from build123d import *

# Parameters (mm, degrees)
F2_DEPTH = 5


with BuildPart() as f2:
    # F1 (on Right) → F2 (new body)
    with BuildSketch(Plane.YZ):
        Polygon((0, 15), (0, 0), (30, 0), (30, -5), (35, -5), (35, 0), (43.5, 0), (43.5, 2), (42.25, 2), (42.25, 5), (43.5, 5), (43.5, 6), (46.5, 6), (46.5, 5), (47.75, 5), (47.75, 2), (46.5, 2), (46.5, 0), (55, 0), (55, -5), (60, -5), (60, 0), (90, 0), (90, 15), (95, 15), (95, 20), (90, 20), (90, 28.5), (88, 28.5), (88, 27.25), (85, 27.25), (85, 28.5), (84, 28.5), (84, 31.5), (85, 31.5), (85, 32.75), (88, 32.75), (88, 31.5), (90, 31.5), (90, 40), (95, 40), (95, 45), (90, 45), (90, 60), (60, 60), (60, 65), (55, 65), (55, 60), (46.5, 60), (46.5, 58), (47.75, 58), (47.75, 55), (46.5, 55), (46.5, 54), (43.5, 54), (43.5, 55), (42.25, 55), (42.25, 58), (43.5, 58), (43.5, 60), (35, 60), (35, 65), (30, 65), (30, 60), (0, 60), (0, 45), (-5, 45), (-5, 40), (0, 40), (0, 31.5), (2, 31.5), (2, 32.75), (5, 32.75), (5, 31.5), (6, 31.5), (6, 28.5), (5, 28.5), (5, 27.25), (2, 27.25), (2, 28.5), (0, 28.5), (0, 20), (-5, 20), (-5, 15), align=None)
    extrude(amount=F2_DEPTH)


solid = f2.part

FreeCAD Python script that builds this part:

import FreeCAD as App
import Part
import Sketcher
from FreeCAD import Vector
Q = App.Units.Quantity


def add_polygon(sketch, points):
    """Adds a closed chain of lines whose ends are joined by coincident constraints."""
    first, n = sketch.GeometryCount, len(points)
    for a, b in zip(points, points[1:] + points[:1]):
        sketch.addGeometry(Part.LineSegment(App.Vector(*a, 0), App.Vector(*b, 0)), False)
    for i in range(n):
        sketch.addConstraint(Sketcher.Constraint("Coincident", first + i, 2, first + (i + 1) % n, 1))

doc = App.newDocument("Part")
body = doc.addObject("PartDesign::Body", "Body")

# Sketch on YZ plane
sketch1 = body.newObject("Sketcher::SketchObject", "Sketch")
sketch1.AttachmentSupport = (doc.getObject("YZ_Plane"), [""])
sketch1.MapMode = "FlatFace"
add_polygon(sketch1, [(0, 15), (0, 0), (30, 0), (30, -5), (35, -5), (35, 0), (43.5, 0), (43.5, 2), (42.2, 2), (42.2, 5), (43.5, 5), (43.5, 6), (46.5, 6), (46.5, 5), (47.8, 5), (47.8, 2), (46.5, 2), (46.5, 0), (55, 0), (55, -5), (60, -5), (60, 0), (90, 0), (90, 15), (95, 15), (95, 20), (90, 20), (90, 28.5), (88, 28.5), (88, 27.2), (85, 27.2), (85, 28.5), (84, 28.5), (84, 31.5), (85, 31.5), (85, 32.8), (88, 32.8), (88, 31.5), (90, 31.5), (90, 40), (95, 40), (95, 45), (90, 45), (90, 60), (60, 60), (60, 65), (55, 65), (55, 60), (46.5, 60), (46.5, 58), (47.8, 58), (47.8, 55), (46.5, 55), (46.5, 54), (43.5, 54), (43.5, 55), (42.2, 55), (42.2, 58), (43.5, 58), (43.5, 60), (35, 60), (35, 65), (30, 65), (30, 60), (0, 60), (0, 45), (-5, 45), (-5, 40), (0, 40), (0, 31.5), (2, 31.5), (2, 32.8), (5, 32.8), (5, 31.5), (6, 31.5), (6, 28.5), (5, 28.5), (5, 27.2), (2, 27.2), (2, 28.5), (0, 28.5), (0, 20), (-5, 20), (-5, 15)])  # lines 0-83
sketch1.addConstraint(Sketcher.Constraint("Vertical", 0))
sketch1.addConstraint(Sketcher.Constraint("Horizontal", 1))
sketch1.addConstraint(Sketcher.Constraint("Vertical", 2))
sketch1.addConstraint(Sketcher.Constraint("Horizontal", 3))
sketch1.addConstraint(Sketcher.Constraint("Vertical", 4))
sketch1.addConstraint(Sketcher.Constraint("Horizontal", 5))
sketch1.addConstraint(Sketcher.Constraint("Vertical", 6))
sketch1.addConstraint(Sketcher.Constraint("Horizontal", 7))
sketch1.addConstraint(Sketcher.Constraint("Vertical", 8))
sketch1.addConstraint(Sketcher.Constraint("Horizontal", 9))
sketch1.addConstraint(Sketcher.Constraint("Vertical", 10))
sketch1.addConstraint(Sketcher.Constraint("Horizontal", 11))
sketch1.addConstraint(Sketcher.Constraint("Vertical", 12))
sketch1.addConstraint(Sketcher.Constraint("Horizontal", 13))
sketch1.addConstraint(Sketcher.Constraint("Vertical", 14))
sketch1.addConstraint(Sketcher.Constraint("Horizontal", 15))
sketch1.addConstraint(Sketcher.Constraint("Vertical", 16))
sketch1.addConstraint(Sketcher.Constraint("Horizontal", 17))
sketch1.addConstraint(Sketcher.Constraint("Vertical", 18))
sketch1.addConstraint(Sketcher.Constraint("Horizontal", 19))
sketch1.addConstraint(Sketcher.Constraint("Vertical", 20))
sketch1.addConstraint(Sketcher.Constraint("Horizontal", 21))
sketch1.addConstraint(Sketcher.Constraint("Vertical", 22))
sketch1.addConstraint(Sketcher.Constraint("Horizontal", 23))
sketch1.addConstraint(Sketcher.Constraint("Vertical", 24))
sketch1.addConstraint(Sketcher.Constraint("Horizontal", 25))
sketch1.addConstraint(Sketcher.Constraint("Vertical", 26))
sketch1.addConstraint(Sketcher.Constraint("Horizontal", 27))
sketch1.addConstraint(Sketcher.Constraint("Vertical", 28))
sketch1.addConstraint(Sketcher.Constraint("Horizontal", 29))
sketch1.addConstraint(Sketcher.Constraint("Vertical", 30))
sketch1.addConstraint(Sketcher.Constraint("Horizontal", 31))
sketch1.addConstraint(Sketcher.Constraint("Vertical", 32))
sketch1.addConstraint(Sketcher.Constraint("Horizontal", 33))
sketch1.addConstraint(Sketcher.Constraint("Vertical", 34))
sketch1.addConstraint(Sketcher.Constraint("Horizontal", 35))
sketch1.addConstraint(Sketcher.Constraint("Vertical", 36))
sketch1.addConstraint(Sketcher.Constraint("Horizontal", 37))
sketch1.addConstraint(Sketcher.Constraint("Vertical", 38))
sketch1.addConstraint(Sketcher.Constraint("Horizontal", 39))
sketch1.addConstraint(Sketcher.Constraint("Vertical", 40))
sketch1.addConstraint(Sketcher.Constraint("Horizontal", 41))
sketch1.addConstraint(Sketcher.Constraint("Vertical", 42))
sketch1.addConstraint(Sketcher.Constraint("Horizontal", 43))
sketch1.addConstraint(Sketcher.Constraint("Vertical", 44))
sketch1.addConstraint(Sketcher.Constraint("Horizontal", 45))
sketch1.addConstraint(Sketcher.Constraint("Vertical", 46))
sketch1.addConstraint(Sketcher.Constraint("Horizontal", 47))
sketch1.addConstraint(Sketcher.Constraint("Vertical", 48))
sketch1.addConstraint(Sketcher.Constraint("Horizontal", 49))
sketch1.addConstraint(Sketcher.Constraint("Vertical", 50))
sketch1.addConstraint(Sketcher.Constraint("Horizontal", 51))
sketch1.addConstraint(Sketcher.Constraint("Vertical", 52))
sketch1.addConstraint(Sketcher.Constraint("Horizontal", 53))
sketch1.addConstraint(Sketcher.Constraint("Vertical", 54))
sketch1.addConstraint(Sketcher.Constraint("Horizontal", 55))
sketch1.addConstraint(Sketcher.Constraint("Vertical", 56))
sketch1.addConstraint(Sketcher.Constraint("Horizontal", 57))
sketch1.addConstraint(Sketcher.Constraint("Vertical", 58))
sketch1.addConstraint(Sketcher.Constraint("Horizontal", 59))
sketch1.addConstraint(Sketcher.Constraint("Vertical", 60))
sketch1.addConstraint(Sketcher.Constraint("Horizontal", 61))
sketch1.addConstraint(Sketcher.Constraint("Vertical", 62))
sketch1.addConstraint(Sketcher.Constraint("Horizontal", 63))
sketch1.addConstraint(Sketcher.Constraint("Vertical", 64))
sketch1.addConstraint(Sketcher.Constraint("Horizontal", 65))
sketch1.addConstraint(Sketcher.Constraint("Vertical", 66))
sketch1.addConstraint(Sketcher.Constraint("Horizontal", 67))
sketch1.addConstraint(Sketcher.Constraint("Vertical", 68))
sketch1.addConstraint(Sketcher.Constraint("Horizontal", 69))
sketch1.addConstraint(Sketcher.Constraint("Vertical", 70))
sketch1.addConstraint(Sketcher.Constraint("Horizontal", 71))
sketch1.addConstraint(Sketcher.Constraint("Vertical", 72))
sketch1.addConstraint(Sketcher.Constraint("Horizontal", 73))
sketch1.addConstraint(Sketcher.Constraint("Vertical", 74))
sketch1.addConstraint(Sketcher.Constraint("Horizontal", 75))
sketch1.addConstraint(Sketcher.Constraint("Vertical", 76))
sketch1.addConstraint(Sketcher.Constraint("Horizontal", 77))
sketch1.addConstraint(Sketcher.Constraint("Vertical", 78))
sketch1.addConstraint(Sketcher.Constraint("Horizontal", 79))
sketch1.addConstraint(Sketcher.Constraint("Vertical", 80))
sketch1.addConstraint(Sketcher.Constraint("Horizontal", 81))
sketch1.addConstraint(Sketcher.Constraint("Vertical", 82))
sketch1.addConstraint(Sketcher.Constraint("Horizontal", 83))
sketch1.addConstraint(Sketcher.Constraint("Coincident", 0, 2, -1, 1))
sketch1.addConstraint(Sketcher.Constraint("PointOnObject", 4, 2, -1))
sketch1.addConstraint(Sketcher.Constraint("PointOnObject", 16, 2, -1))
sketch1.addConstraint(Sketcher.Constraint("PointOnObject", 20, 2, -1))
sketch1.addConstraint(Sketcher.Constraint("PointOnObject", 63, 2, -2))
sketch1.addConstraint(Sketcher.Constraint("PointOnObject", 67, 2, -2))
sketch1.addConstraint(Sketcher.Constraint("PointOnObject", 79, 2, -2))
sketch1.addConstraint(Sketcher.Constraint("Horizontal", 9, 2, 12, 2))
sketch1.addConstraint(Sketcher.Constraint("Horizontal", 7, 2, 14, 2))
sketch1.addConstraint(Sketcher.Constraint("Horizontal", 3, 2, 18, 2))
sketch1.addConstraint(Sketcher.Constraint("Horizontal", 27, 2, 30, 2))
sketch1.addConstraint(Sketcher.Constraint("Horizontal", 33, 2, 36, 2))
sketch1.addConstraint(Sketcher.Constraint("Horizontal", 43, 2, 46, 2))
sketch1.addConstraint(Sketcher.Constraint("Horizontal", 51, 2, 54, 2))
sketch1.addConstraint(Sketcher.Constraint("Horizontal", 49, 2, 56, 2))
sketch1.addConstraint(Sketcher.Constraint("Horizontal", 47, 2, 58, 2))
sketch1.addConstraint(Sketcher.Constraint("Horizontal", 45, 2, 60, 2))
sketch1.addConstraint(Sketcher.Constraint("Horizontal", 59, 2, 62, 2))
sketch1.addConstraint(Sketcher.Constraint("Horizontal", 41, 2, 64, 2))
sketch1.addConstraint(Sketcher.Constraint("Horizontal", 39, 2, 66, 2))
sketch1.addConstraint(Sketcher.Constraint("Horizontal", 37, 2, 68, 2))
sketch1.addConstraint(Sketcher.Constraint("Horizontal", 35, 2, 70, 2))
sketch1.addConstraint(Sketcher.Constraint("Horizontal", 69, 2, 72, 2))
sketch1.addConstraint(Sketcher.Constraint("Horizontal", 31, 2, 74, 2))
sketch1.addConstraint(Sketcher.Constraint("Horizontal", 29, 2, 76, 2))
sketch1.addConstraint(Sketcher.Constraint("Horizontal", 75, 2, 78, 2))
sketch1.addConstraint(Sketcher.Constraint("Horizontal", 25, 2, 80, 2))
sketch1.addConstraint(Sketcher.Constraint("Horizontal", 23, 2, 82, 2))
sketch1.addConstraint(Sketcher.Constraint("Vertical", 6, 2, 9, 2))
sketch1.addConstraint(Sketcher.Constraint("Vertical", 12, 2, 15, 2))
sketch1.addConstraint(Sketcher.Constraint("Vertical", 22, 2, 25, 2))
sketch1.addConstraint(Sketcher.Constraint("Vertical", 30, 2, 33, 2))
sketch1.addConstraint(Sketcher.Constraint("Vertical", 28, 2, 35, 2))
sketch1.addConstraint(Sketcher.Constraint("Vertical", 26, 2, 37, 2))
sketch1.addConstraint(Sketcher.Constraint("Vertical", 24, 2, 39, 2))
sketch1.addConstraint(Sketcher.Constraint("Vertical", 38, 2, 41, 2))
sketch1.addConstraint(Sketcher.Constraint("Vertical", 20, 2, 43, 2))
sketch1.addConstraint(Sketcher.Constraint("Vertical", 18, 2, 45, 2))
sketch1.addConstraint(Sketcher.Constraint("Vertical", 16, 2, 47, 2))
sketch1.addConstraint(Sketcher.Constraint("Vertical", 14, 2, 49, 2))
sketch1.addConstraint(Sketcher.Constraint("Vertical", 48, 2, 51, 2))
sketch1.addConstraint(Sketcher.Constraint("Vertical", 10, 2, 53, 2))
sketch1.addConstraint(Sketcher.Constraint("Vertical", 8, 2, 55, 2))
sketch1.addConstraint(Sketcher.Constraint("Vertical", 54, 2, 57, 2))
sketch1.addConstraint(Sketcher.Constraint("Vertical", 4, 2, 59, 2))
sketch1.addConstraint(Sketcher.Constraint("Vertical", 2, 2, 61, 2))
sketch1.addConstraint(Sketcher.Constraint("Vertical", 72, 2, 75, 2))
sketch1.addConstraint(Sketcher.Constraint("Vertical", 70, 2, 77, 2))
sketch1.addConstraint(Sketcher.Constraint("Vertical", 66, 2, 81, 2))
sketch1.addConstraint(Sketcher.Constraint("Equal", 9, 13))
sketch1.addConstraint(Sketcher.Constraint("Equal", 5, 17))
sketch1.addConstraint(Sketcher.Constraint("Equal", 3, 19))
sketch1.addConstraint(Sketcher.Constraint("Equal", 1, 21))
sketch1.addConstraint(Sketcher.Constraint("Equal", 19, 23))
sketch1.addConstraint(Sketcher.Constraint("Equal", 11, 29))
sketch1.addConstraint(Sketcher.Constraint("Equal", 61, 65))
sketch1.addConstraint(Sketcher.Constraint("Equal", 37, 69))
sketch1.addConstraint(Sketcher.Constraint("Equal", 53, 71))
sketch1.addConstraint(Sketcher.Constraint("Equal", 33, 73))
sketch1.addConstraint(Sketcher.Constraint("Equal", 83, 2))
sketch1.addConstraint(Sketcher.Constraint("Equal", 79, 6))
sketch1.addConstraint(Sketcher.Constraint("Equal", 77, 8))
sketch1.addConstraint(Sketcher.Constraint("Equal", 75, 10))
sketch1.addConstraint(Sketcher.Constraint("Equal", 20, 24))
sketch1.addConstraint(Sketcher.Constraint("Equal", 59, 26))
sketch1.addConstraint(Sketcher.Constraint("Equal", 57, 28))
sketch1.addConstraint(Sketcher.Constraint("Equal", 14, 32))
sketch1.addConstraint(Sketcher.Constraint("Equal", 30, 34))
sketch1.addConstraint(Sketcher.Constraint("Equal", 26, 38))
sketch1.addConstraint(Sketcher.Constraint("Equal", 24, 40))
sketch1.addConstraint(Sketcher.Constraint("Equal", 22, 42))
sketch1.addConstraint(Sketcher.Constraint("Equal", 40, 44))
sketch1.addConstraint(Sketcher.Constraint("Equal", 16, 48))
sketch1.addConstraint(Sketcher.Constraint("Equal", 32, 50))
sketch1.addConstraint(Sketcher.Constraint("Equal", 12, 52))
sketch1.addConstraint(Sketcher.Constraint("DistanceX", 1, 1, 1, 2, Q("30 mm")))
sketch1.addConstraint(Sketcher.Constraint("DistanceX", 3, 1, 3, 2, Q("5 mm")))
sketch1.addConstraint(Sketcher.Constraint("DistanceX", 11, 1, 11, 2, Q("3 mm")))
sketch1.addConstraint(Sketcher.Constraint("DistanceX", 27, 2, 27, 1, Q("2 mm")))
sketch1.addConstraint(Sketcher.Constraint("DistanceX", 31, 2, 31, 1, Q("1 mm")))
sketch1.addConstraint(Sketcher.Constraint("DistanceY", 0, 2, 0, 1, Q("15 mm")))
sketch1.addConstraint(Sketcher.Constraint("DistanceX", 5, 1, 5, 2, Q("8.5 mm")))
sketch1.addConstraint(Sketcher.Constraint("DistanceX", 7, 2, 7, 1, Q("1.25 mm")))
pad1 = body.newObject("PartDesign::Pad", "Pad")
pad1.Profile = sketch1
pad1.Length = 5

doc.recompute()
